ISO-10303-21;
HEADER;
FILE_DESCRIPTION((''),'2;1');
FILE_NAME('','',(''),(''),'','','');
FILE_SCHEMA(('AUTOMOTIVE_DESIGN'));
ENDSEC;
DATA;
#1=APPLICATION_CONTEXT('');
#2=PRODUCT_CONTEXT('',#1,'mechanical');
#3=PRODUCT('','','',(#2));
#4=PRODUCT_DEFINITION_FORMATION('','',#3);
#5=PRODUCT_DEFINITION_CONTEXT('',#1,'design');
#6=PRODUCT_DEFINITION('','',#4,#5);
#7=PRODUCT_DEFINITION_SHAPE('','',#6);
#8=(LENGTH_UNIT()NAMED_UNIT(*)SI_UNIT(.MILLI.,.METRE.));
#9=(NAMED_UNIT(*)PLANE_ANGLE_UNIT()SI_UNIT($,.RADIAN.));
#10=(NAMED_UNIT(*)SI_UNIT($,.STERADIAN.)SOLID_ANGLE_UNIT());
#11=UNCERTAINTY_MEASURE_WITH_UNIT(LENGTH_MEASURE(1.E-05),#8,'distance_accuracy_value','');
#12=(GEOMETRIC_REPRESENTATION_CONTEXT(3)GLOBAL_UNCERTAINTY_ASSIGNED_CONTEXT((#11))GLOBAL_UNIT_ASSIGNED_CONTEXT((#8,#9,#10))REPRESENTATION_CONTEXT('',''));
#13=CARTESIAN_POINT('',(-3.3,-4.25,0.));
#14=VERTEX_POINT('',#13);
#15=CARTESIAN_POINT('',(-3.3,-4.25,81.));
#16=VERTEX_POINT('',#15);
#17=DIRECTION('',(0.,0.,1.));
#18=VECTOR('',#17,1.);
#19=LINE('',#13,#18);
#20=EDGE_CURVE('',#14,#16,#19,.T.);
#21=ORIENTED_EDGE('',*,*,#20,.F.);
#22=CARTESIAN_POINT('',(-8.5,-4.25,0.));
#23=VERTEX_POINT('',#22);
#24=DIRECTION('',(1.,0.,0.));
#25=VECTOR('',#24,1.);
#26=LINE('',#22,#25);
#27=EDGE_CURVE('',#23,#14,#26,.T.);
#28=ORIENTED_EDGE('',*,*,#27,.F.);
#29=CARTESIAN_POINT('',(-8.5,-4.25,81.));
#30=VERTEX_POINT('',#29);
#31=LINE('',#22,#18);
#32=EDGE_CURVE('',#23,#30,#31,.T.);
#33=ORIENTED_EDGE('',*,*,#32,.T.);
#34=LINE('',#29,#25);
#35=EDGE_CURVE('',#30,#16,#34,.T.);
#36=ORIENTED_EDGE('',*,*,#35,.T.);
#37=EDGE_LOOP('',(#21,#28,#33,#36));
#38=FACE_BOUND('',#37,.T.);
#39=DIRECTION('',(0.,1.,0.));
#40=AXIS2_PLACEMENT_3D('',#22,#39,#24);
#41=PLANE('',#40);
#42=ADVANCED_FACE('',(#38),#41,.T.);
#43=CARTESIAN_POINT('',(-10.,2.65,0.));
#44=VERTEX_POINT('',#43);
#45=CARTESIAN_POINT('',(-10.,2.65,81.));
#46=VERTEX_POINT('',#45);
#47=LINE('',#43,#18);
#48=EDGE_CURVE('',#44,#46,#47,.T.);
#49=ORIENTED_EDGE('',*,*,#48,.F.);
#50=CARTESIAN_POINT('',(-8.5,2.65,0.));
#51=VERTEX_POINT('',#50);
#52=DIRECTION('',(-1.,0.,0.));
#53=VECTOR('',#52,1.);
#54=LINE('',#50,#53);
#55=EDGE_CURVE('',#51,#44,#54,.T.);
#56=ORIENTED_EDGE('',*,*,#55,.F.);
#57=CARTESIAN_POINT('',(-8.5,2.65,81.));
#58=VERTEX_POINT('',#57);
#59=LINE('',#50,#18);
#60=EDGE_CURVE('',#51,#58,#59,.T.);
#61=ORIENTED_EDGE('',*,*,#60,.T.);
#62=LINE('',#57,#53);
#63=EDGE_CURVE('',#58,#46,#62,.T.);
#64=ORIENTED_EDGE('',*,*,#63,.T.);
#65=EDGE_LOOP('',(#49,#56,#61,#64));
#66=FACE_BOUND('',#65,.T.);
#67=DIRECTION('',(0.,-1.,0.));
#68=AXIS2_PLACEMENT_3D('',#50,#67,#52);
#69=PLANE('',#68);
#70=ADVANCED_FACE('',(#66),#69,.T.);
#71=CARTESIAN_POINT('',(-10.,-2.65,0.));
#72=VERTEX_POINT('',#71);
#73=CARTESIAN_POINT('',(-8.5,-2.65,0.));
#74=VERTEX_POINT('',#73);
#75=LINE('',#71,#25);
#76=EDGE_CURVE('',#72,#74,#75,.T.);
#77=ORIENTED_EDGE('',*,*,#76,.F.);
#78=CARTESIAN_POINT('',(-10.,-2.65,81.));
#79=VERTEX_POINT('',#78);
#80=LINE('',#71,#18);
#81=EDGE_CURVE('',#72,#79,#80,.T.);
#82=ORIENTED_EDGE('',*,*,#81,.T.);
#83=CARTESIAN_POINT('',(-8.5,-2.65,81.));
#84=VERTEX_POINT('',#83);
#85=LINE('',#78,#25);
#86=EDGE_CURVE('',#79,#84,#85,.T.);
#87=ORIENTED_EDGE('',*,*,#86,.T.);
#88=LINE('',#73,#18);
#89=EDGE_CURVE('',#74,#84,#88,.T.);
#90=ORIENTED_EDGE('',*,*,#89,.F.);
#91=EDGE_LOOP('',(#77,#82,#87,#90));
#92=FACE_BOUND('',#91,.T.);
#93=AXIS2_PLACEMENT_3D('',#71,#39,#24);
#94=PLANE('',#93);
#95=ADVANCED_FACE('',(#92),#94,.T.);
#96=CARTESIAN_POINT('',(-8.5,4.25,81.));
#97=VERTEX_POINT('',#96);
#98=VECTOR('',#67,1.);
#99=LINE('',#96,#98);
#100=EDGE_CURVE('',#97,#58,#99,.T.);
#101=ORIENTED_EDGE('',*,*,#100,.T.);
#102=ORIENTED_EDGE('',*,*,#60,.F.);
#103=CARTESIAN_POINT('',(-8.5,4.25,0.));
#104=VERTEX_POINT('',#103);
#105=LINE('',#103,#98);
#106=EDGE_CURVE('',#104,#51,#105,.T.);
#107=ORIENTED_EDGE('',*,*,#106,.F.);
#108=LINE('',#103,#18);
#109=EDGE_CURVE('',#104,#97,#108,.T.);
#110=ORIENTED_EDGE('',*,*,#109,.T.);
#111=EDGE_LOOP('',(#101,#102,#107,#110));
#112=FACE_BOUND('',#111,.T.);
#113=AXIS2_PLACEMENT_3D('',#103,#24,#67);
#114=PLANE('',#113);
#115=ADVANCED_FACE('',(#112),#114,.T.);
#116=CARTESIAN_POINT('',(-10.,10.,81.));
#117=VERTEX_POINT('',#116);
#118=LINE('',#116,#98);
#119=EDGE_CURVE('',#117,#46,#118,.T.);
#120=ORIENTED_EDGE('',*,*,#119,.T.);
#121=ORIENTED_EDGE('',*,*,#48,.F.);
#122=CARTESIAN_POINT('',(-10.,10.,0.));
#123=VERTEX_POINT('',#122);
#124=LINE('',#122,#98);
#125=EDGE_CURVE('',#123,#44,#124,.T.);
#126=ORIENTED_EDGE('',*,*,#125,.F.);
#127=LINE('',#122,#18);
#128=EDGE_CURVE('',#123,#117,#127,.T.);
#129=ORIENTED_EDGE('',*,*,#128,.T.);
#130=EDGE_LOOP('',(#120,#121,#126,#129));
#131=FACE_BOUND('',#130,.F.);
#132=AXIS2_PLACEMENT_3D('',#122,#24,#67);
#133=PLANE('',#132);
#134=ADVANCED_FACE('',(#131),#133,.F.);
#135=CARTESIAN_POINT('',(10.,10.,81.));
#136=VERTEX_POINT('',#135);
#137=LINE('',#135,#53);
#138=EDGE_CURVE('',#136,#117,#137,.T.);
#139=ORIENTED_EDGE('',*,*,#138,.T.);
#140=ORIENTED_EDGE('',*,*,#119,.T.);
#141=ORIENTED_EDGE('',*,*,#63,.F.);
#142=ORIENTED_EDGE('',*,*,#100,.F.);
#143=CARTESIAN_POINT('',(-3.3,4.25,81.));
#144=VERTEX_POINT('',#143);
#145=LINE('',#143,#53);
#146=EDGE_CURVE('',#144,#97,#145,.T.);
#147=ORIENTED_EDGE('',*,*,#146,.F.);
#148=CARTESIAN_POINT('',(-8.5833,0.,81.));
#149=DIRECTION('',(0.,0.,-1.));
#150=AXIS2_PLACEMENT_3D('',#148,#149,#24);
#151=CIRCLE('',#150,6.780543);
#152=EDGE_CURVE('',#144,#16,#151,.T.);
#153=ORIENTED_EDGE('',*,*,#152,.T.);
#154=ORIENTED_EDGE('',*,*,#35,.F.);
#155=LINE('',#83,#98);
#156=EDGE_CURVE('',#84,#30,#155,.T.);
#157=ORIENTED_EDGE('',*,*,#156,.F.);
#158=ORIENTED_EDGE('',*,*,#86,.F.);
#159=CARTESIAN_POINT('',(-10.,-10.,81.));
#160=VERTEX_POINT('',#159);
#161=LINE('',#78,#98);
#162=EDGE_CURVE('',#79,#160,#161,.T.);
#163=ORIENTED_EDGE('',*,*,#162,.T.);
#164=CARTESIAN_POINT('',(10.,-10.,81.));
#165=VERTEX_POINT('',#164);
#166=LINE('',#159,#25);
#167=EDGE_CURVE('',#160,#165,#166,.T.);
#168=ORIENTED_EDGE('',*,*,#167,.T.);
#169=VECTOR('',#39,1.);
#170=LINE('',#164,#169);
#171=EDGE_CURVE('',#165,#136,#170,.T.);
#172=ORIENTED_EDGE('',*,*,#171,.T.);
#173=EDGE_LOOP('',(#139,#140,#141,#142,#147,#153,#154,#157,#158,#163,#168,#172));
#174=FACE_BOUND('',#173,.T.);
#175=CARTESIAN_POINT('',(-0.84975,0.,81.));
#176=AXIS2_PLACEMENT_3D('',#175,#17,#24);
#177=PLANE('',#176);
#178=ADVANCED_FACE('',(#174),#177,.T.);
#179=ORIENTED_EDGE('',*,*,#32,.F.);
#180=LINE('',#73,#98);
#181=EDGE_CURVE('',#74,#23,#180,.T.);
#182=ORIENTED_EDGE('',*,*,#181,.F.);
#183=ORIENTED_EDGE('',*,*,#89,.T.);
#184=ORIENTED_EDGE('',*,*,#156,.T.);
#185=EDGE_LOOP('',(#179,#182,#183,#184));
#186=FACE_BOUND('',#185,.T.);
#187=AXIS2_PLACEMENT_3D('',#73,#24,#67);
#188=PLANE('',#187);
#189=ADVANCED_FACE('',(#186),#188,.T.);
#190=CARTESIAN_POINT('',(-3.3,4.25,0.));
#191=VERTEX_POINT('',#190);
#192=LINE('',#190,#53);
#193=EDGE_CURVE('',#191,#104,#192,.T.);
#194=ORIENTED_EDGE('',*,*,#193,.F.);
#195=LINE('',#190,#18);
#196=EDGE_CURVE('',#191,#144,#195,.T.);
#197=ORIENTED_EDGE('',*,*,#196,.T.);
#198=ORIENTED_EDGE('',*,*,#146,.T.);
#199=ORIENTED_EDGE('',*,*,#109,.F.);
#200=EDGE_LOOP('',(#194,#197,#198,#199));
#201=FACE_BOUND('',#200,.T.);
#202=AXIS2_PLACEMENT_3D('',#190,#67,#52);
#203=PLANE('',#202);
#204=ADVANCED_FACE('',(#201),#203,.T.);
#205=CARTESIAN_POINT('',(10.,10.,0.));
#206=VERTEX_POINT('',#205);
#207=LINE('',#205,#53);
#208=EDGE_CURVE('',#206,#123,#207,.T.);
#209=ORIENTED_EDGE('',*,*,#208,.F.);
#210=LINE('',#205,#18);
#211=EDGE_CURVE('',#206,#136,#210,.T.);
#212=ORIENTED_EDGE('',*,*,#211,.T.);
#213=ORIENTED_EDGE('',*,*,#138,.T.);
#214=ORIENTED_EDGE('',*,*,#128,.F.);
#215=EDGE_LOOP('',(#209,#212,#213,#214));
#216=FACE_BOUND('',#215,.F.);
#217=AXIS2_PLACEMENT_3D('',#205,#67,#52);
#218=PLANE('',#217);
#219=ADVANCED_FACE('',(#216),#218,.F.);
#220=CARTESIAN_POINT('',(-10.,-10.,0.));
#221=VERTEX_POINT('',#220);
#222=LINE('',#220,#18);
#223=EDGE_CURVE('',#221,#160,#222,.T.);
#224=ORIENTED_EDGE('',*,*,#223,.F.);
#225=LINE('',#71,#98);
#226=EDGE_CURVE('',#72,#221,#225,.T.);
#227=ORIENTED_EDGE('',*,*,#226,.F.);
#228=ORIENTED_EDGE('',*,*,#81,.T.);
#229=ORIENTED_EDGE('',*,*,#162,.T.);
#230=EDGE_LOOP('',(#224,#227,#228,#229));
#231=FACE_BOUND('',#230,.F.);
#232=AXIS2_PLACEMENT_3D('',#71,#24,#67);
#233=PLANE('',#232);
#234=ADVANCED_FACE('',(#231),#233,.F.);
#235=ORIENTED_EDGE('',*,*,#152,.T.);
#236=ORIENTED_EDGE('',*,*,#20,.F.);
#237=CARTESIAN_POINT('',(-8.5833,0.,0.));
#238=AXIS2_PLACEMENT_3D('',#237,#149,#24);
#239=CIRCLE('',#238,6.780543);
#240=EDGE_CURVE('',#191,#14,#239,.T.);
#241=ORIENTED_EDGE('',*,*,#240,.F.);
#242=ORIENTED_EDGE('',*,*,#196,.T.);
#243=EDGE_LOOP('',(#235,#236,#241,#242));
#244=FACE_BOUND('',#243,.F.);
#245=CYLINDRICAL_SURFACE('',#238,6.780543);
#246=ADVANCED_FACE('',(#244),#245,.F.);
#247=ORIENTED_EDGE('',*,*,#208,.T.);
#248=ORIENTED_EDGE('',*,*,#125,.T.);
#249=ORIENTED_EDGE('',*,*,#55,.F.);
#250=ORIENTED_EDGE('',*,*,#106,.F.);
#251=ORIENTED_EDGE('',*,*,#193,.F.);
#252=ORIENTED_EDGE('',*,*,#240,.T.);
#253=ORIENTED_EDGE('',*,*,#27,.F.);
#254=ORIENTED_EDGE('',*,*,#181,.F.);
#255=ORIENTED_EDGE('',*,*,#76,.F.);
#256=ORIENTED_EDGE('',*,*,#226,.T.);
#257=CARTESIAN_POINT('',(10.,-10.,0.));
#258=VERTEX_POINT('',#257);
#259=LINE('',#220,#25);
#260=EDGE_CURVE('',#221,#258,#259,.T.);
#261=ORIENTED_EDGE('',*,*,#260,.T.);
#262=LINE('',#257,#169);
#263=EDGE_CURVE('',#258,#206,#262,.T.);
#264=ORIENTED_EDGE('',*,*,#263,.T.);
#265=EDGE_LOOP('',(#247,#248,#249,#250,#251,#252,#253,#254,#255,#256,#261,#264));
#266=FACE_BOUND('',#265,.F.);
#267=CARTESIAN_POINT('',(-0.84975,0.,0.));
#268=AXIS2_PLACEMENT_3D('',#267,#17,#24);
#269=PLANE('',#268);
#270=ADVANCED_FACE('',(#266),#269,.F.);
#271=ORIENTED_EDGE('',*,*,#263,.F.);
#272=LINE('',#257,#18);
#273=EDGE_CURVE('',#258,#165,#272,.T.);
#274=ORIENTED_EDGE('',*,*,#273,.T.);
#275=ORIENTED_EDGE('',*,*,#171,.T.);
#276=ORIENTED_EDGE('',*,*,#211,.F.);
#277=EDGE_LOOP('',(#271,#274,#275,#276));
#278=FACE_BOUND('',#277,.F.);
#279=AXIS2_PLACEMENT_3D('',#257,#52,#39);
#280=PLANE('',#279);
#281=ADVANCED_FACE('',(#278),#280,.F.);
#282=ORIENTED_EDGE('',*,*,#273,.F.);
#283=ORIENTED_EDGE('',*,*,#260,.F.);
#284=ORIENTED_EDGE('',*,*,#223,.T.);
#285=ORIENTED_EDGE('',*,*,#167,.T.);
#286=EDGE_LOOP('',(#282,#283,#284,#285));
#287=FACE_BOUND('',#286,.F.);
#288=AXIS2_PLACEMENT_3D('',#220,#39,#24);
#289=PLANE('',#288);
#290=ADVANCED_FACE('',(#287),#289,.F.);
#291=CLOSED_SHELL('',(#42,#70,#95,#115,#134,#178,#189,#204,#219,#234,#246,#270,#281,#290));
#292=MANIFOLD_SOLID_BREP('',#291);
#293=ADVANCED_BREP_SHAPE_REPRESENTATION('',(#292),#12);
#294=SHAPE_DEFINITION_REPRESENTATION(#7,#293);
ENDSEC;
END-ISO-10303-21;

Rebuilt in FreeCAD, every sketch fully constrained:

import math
import FreeCAD as App
import Part
import Sketcher

V = App.Vector
Q = App.Units.Quantity

doc = App.newDocument("Part")
body = doc.addObject("PartDesign::Body", "Body")

sketch1 = body.newObject("Sketcher::SketchObject", "Sketch")
sketch1.AttachmentSupport = (doc.getObject("XY_Plane"), [""])
sketch1.MapMode = "FlatFace"
sketch1.addGeometry([
    Part.LineSegment(V(-10, -2.6, 0), V(-10, -10, 0)),
    Part.LineSegment(V(-10, -10, 0), V(10, -10, 0)),
    Part.LineSegment(V(10, -10, 0), V(10, 10, 0)),
    Part.LineSegment(V(10, 10, 0), V(-10, 10, 0)),
    Part.LineSegment(V(-10, 10, 0), V(-10, 2.6, 0)),
    Part.LineSegment(V(-10, 2.6, 0), V(-8.5, 2.6, 0)),
    Part.LineSegment(V(-8.5, 2.6, 0), V(-8.5, 4.2, 0)),
    Part.LineSegment(V(-8.5, 4.2, 0), V(-3.3, 4.2, 0)),
    Part.ArcOfCircle(Part.Circle(V(-8.6, 0, 0), V(0, 0, 1), 6.8), math.radians(-39), math.radians(39)),
    Part.LineSegment(V(-3.3, -4.2, 0), V(-8.5, -4.2, 0)),
    Part.LineSegment(V(-8.5, -4.2, 0), V(-8.5, -2.6, 0)),
    Part.LineSegment(V(-8.5, -2.6, 0), V(-10, -2.6, 0)),
], False)
sketch1.addConstraint([
    Sketcher.Constraint("Coincident", 0, 2, 1, 1),
    Sketcher.Constraint("Coincident", 1, 2, 2, 1),
    Sketcher.Constraint("Coincident", 2, 2, 3, 1),
    Sketcher.Constraint("Coincident", 3, 2, 4, 1),
    Sketcher.Constraint("Coincident", 4, 2, 5, 1),
    Sketcher.Constraint("Coincident", 5, 2, 6, 1),
    Sketcher.Constraint("Coincident", 6, 2, 7, 1),
    Sketcher.Constraint("Coincident", 7, 2, 8, 2),
    Sketcher.Constraint("Coincident", 8, 1, 9, 1),
    Sketcher.Constraint("Coincident", 9, 2, 10, 1),
    Sketcher.Constraint("Coincident", 10, 2, 11, 1),
    Sketcher.Constraint("Coincident", 11, 2, 0, 1),
    Sketcher.Constraint("Vertical", 0),
    Sketcher.Constraint("Horizontal", 1),
    Sketcher.Constraint("Vertical", 2),
    Sketcher.Constraint("Horizontal", 3),
    Sketcher.Constraint("Vertical", 4),
    Sketcher.Constraint("Horizontal", 5),
    Sketcher.Constraint("Vertical", 6),
    Sketcher.Constraint("Horizontal", 7),
    Sketcher.Constraint("Horizontal", 9),
    Sketcher.Constraint("Vertical", 10),
    Sketcher.Constraint("Horizontal", 11),
    Sketcher.Constraint("Symmetric", 0, 2, 2, 2, -1, 1),
    Sketcher.Constraint("Symmetric", 7, 2, 8, 1, -1),
    Sketcher.Constraint("Symmetric", 5, 2, 10, 2, -1),
    Sketcher.Constraint("Vertical", 0, 2, 3, 2),
    Sketcher.Constraint("Equal", 3, 2),
    Sketcher.Constraint("DistanceX", 1, 1, 1, 2, Q("20 mm")),
    Sketcher.Constraint("DistanceX", 5, 1, 5, 2, Q("1.5 mm")),
    Sketcher.Constraint("DistanceX", 7, 1, 7, 2, Q("5.2 mm")),
    Sketcher.Constraint("DistanceY", 6, 1, 6, 2, Q("1.6 mm")),
    Sketcher.Constraint("DistanceY", 0, 2, 0, 1, Q("7.35 mm")),
    Sketcher.Constraint("Radius", 8, Q("6.7805 mm")),
])
pad1 = body.newObject("PartDesign::Pad", "Pad")
pad1.Profile = sketch1
pad1.Length = 81

doc.recompute()
